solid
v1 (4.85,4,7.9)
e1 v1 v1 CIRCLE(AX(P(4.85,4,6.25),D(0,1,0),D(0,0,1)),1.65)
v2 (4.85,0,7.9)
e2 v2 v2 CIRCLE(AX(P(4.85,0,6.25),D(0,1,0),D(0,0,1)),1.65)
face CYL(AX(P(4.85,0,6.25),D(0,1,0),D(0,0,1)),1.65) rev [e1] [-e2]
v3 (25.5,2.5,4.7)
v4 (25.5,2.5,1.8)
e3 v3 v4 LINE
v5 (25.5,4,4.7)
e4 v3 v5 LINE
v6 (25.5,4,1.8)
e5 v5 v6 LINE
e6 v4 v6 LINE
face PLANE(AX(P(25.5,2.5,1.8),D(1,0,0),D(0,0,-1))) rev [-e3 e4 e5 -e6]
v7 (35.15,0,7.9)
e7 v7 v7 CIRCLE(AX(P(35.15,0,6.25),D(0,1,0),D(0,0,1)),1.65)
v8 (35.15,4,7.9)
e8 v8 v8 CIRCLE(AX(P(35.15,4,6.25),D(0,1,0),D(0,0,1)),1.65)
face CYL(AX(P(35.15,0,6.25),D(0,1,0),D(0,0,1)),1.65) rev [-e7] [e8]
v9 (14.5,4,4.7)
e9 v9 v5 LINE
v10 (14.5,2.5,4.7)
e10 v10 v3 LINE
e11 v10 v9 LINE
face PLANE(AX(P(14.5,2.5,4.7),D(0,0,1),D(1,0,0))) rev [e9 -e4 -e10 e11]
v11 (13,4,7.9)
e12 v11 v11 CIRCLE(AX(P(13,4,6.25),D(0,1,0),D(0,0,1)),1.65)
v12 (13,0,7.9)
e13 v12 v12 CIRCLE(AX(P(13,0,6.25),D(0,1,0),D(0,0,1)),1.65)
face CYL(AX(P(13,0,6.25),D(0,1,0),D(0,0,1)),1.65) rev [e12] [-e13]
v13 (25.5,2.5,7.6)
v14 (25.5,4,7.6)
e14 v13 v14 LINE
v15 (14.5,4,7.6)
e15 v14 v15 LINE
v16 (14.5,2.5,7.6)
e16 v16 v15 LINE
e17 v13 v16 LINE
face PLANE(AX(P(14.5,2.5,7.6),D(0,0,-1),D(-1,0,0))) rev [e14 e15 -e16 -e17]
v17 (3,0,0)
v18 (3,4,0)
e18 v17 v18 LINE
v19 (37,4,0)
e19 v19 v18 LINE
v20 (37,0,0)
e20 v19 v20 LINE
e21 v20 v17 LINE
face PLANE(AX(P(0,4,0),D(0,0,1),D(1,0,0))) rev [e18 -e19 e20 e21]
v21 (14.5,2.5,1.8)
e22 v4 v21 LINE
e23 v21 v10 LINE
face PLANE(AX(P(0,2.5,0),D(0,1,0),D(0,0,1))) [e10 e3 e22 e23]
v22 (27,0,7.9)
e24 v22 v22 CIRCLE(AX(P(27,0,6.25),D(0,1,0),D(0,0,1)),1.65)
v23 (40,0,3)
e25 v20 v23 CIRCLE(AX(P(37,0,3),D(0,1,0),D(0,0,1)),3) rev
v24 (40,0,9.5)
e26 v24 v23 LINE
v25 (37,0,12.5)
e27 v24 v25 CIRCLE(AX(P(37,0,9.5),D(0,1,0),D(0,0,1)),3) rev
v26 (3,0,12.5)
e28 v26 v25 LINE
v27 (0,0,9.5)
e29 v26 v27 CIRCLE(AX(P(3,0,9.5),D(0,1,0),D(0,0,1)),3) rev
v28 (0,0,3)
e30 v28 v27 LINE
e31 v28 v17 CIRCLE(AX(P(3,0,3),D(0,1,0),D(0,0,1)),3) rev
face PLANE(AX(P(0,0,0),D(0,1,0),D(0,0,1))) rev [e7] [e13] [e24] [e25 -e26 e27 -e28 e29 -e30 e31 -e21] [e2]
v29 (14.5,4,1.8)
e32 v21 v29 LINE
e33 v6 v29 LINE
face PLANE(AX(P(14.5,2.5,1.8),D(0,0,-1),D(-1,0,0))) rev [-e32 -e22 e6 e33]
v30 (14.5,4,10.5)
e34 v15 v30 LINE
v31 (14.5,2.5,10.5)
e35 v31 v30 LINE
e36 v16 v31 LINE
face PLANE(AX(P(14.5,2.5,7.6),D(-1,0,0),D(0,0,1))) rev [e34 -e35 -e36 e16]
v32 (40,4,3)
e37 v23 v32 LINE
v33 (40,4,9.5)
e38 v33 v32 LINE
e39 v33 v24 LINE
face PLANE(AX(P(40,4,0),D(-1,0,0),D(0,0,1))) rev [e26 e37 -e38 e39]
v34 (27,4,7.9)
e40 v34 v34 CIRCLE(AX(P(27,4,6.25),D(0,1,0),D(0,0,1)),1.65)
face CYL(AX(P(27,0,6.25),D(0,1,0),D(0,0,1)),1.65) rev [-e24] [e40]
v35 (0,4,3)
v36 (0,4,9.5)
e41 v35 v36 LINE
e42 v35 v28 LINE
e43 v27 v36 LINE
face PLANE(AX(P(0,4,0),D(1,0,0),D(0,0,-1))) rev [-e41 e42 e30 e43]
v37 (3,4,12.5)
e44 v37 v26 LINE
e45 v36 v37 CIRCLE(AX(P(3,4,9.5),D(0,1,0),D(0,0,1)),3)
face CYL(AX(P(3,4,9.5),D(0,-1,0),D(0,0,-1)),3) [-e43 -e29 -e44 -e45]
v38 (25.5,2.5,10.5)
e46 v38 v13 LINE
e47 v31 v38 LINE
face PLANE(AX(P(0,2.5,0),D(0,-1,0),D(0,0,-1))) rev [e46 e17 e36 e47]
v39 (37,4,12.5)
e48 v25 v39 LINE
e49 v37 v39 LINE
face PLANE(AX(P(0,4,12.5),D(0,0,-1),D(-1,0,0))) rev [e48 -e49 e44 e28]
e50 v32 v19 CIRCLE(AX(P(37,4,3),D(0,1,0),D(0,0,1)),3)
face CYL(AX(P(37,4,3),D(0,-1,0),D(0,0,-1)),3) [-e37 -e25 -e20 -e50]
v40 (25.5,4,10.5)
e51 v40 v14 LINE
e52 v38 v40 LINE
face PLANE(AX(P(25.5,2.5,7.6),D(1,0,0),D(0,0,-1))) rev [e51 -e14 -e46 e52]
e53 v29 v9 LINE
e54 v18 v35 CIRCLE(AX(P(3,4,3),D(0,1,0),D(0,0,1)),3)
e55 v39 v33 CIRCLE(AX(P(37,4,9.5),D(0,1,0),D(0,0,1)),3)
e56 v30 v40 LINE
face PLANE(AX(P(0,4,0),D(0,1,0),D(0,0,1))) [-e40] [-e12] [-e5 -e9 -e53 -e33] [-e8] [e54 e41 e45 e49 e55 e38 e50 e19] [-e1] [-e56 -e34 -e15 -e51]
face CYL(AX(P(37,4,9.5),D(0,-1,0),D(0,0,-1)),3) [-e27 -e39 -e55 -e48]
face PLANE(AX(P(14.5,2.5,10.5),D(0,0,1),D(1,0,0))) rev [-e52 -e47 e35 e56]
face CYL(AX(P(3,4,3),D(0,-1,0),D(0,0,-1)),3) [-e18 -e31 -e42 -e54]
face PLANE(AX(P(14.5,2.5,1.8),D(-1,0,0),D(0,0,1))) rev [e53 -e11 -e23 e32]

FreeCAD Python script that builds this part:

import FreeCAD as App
import Part
import Sketcher

V = App.Vector


def edges_at(feature, points):
    """Names of the edges that pass closest to the given points."""
    edges = feature.Shape.Edges
    near = lambda p: min(range(len(edges)), key=lambda i: edges[i].distToShape(Part.Vertex(*p))[0])
    return sorted({f"Edge{near(p) + 1}" for p in points})

doc = App.newDocument("Part")
body = doc.addObject("PartDesign::Body", "Body")

# Sketch on XZ plane
sketch1 = body.newObject("Sketcher::SketchObject", "Sketch")
sketch1.AttachmentSupport = (doc.getObject("XZ_Plane"), [""])
sketch1.MapMode = "FlatFace"
sketch1.addGeometry(Part.LineSegment(V(0, 0, 0), V(0, 12.5, 0)), False)
sketch1.addGeometry(Part.LineSegment(V(0, 12.5, 0), V(40, 12.5, 0)), False)
sketch1.addGeometry(Part.LineSegment(V(40, 12.5, 0), V(40, 0, 0)), False)
sketch1.addGeometry(Part.LineSegment(V(40, 0, 0), V(0, 0, 0)), False)
sketch1.addConstraint(Sketcher.Constraint("Coincident", 0, 2, 1, 1))
sketch1.addConstraint(Sketcher.Constraint("Coincident", 1, 2, 2, 1))
sketch1.addConstraint(Sketcher.Constraint("Coincident", 2, 2, 3, 1))
sketch1.addConstraint(Sketcher.Constraint("Coincident", 3, 2, 0, 1))
sketch1.addConstraint(Sketcher.Constraint("Vertical", 0))
sketch1.addConstraint(Sketcher.Constraint("Horizontal", 1))
sketch1.addConstraint(Sketcher.Constraint("Vertical", 2))
sketch1.addConstraint(Sketcher.Constraint("Horizontal", 3))
sketch1.addConstraint(Sketcher.Constraint("Coincident", 3, 2, -1, 1))
sketch1.addConstraint(Sketcher.Constraint("DistanceX", 1, 1, 1, 2, 40.0))
sketch1.addConstraint(Sketcher.Constraint("DistanceY", 0, 1, 0, 2, 12.5))
pad1 = body.newObject("PartDesign::Pad", "Pad")
pad1.Profile = sketch1
pad1.Length = 4
pad1.Reversed = True

# Sketch on XZ plane
sketch2 = body.newObject("Sketcher::SketchObject", "Sketch001")
sketch2.AttachmentSupport = (doc.getObject("XZ_Plane"), [""])
sketch2.MapMode = "FlatFace"
sketch2.AttachmentOffset = App.Placement(V(0, 0, -4), App.Rotation())
sketch2.addGeometry(Part.Circle(V(4.85, 6.25, 0), V(0, 0, 1), 1.65), False)
sketch2.addGeometry(Part.Circle(V(13, 6.25, 0), V(0, 0, 1), 1.65), False)
sketch2.addGeometry(Part.Circle(V(27, 6.25, 0), V(0, 0, 1), 1.65), False)
sketch2.addGeometry(Part.Circle(V(35.15, 6.25, 0), V(0, 0, 1), 1.65), False)
sketch2.addConstraint(Sketcher.Constraint("Equal", 0, 1))
sketch2.addConstraint(Sketcher.Constraint("Equal", 1, 2))
sketch2.addConstraint(Sketcher.Constraint("Equal", 2, 3))
sketch2.addConstraint(Sketcher.Constraint("Horizontal", 0, 3, 1, 3))
sketch2.addConstraint(Sketcher.Constraint("Horizontal", 1, 3, 2, 3))
sketch2.addConstraint(Sketcher.Constraint("Horizontal", 2, 3, 3, 3))
sketch2.addConstraint(Sketcher.Constraint("Diameter", 0, 3.3))
sketch2.addConstraint(Sketcher.Constraint("DistanceX", -1, 1, 1, 3, 13.0))
sketch2.addConstraint(Sketcher.Constraint("DistanceX", -1, 1, 2, 3, 27.0))
sketch2.addConstraint(Sketcher.Constraint("DistanceX", 0, 3, 3, 3, 30.3))
sketch2.addConstraint(Sketcher.Constraint("DistanceX", -1, 1, 0, 3, 4.85))
sketch2.addConstraint(Sketcher.Constraint("DistanceY", -1, 1, 0, 3, 6.25))
pocket1 = body.newObject("PartDesign::Pocket", "Pocket")
pocket1.Profile = sketch2
pocket1.Type = "ThroughAll"
pocket1.Reversed = True

# Sketch on XZ plane
sketch3 = body.newObject("Sketcher::SketchObject", "Sketch002")
sketch3.AttachmentSupport = (doc.getObject("XZ_Plane"), [""])
sketch3.MapMode = "FlatFace"
sketch3.AttachmentOffset = App.Placement(V(0, 0, -4), App.Rotation())
sketch3.addGeometry(Part.LineSegment(V(14.5, 1.8, 0), V(14.5, 4.7, 0)), False)
sketch3.addGeometry(Part.LineSegment(V(14.5, 4.7, 0), V(25.5, 4.7, 0)), False)
sketch3.addGeometry(Part.LineSegment(V(25.5, 4.7, 0), V(25.5, 1.8, 0)), False)
sketch3.addGeometry(Part.LineSegment(V(25.5, 1.8, 0), V(14.5, 1.8, 0)), False)
sketch3.addGeometry(Part.LineSegment(V(14.5, 7.6, 0), V(14.5, 10.5, 0)), False)
sketch3.addGeometry(Part.LineSegment(V(14.5, 10.5, 0), V(25.5, 10.5, 0)), False)
sketch3.addGeometry(Part.LineSegment(V(25.5, 10.5, 0), V(25.5, 7.6, 0)), False)
sketch3.addGeometry(Part.LineSegment(V(25.5, 7.6, 0), V(14.5, 7.6, 0)), False)
sketch3.addConstraint(Sketcher.Constraint("Coincident", 0, 2, 1, 1))
sketch3.addConstraint(Sketcher.Constraint("Coincident", 1, 2, 2, 1))
sketch3.addConstraint(Sketcher.Constraint("Coincident", 2, 2, 3, 1))
sketch3.addConstraint(Sketcher.Constraint("Coincident", 3, 2, 0, 1))
sketch3.addConstraint(Sketcher.Constraint("Coincident", 4, 2, 5, 1))
sketch3.addConstraint(Sketcher.Constraint("Coincident", 5, 2, 6, 1))
sketch3.addConstraint(Sketcher.Constraint("Coincident", 6, 2, 7, 1))
sketch3.addConstraint(Sketcher.Constraint("Coincident", 7, 2, 4, 1))
sketch3.addConstraint(Sketcher.Constraint("Vertical", 0))
sketch3.addConstraint(Sketcher.Constraint("Horizontal", 1))
sketch3.addConstraint(Sketcher.Constraint("Vertical", 2))
sketch3.addConstraint(Sketcher.Constraint("Horizontal", 3))
sketch3.addConstraint(Sketcher.Constraint("Vertical", 4))
sketch3.addConstraint(Sketcher.Constraint("Horizontal", 5))
sketch3.addConstraint(Sketcher.Constraint("Vertical", 6))
sketch3.addConstraint(Sketcher.Constraint("Horizontal", 7))
sketch3.addConstraint(Sketcher.Constraint("Vertical", 3, 2, 4, 2))
sketch3.addConstraint(Sketcher.Constraint("Vertical", 2, 2, 5, 2))
sketch3.addConstraint(Sketcher.Constraint("Equal", 2, 4))
sketch3.addConstraint(Sketcher.Constraint("DistanceX", 1, 1, 1, 2, 11.0))
sketch3.addConstraint(Sketcher.Constraint("DistanceY", 0, 1, 0, 2, 2.9))
sketch3.addConstraint(Sketcher.Constraint("DistanceX", -1, 1, 0, 2, 14.5))
sketch3.addConstraint(Sketcher.Constraint("DistanceY", -1, 1, 0, 2, 4.7))
sketch3.addConstraint(Sketcher.Constraint("DistanceY", -1, 1, 4, 2, 10.5))
pocket2 = body.newObject("PartDesign::Pocket", "Pocket001")
pocket2.Profile = sketch3
pocket2.Length = 1.5
pocket2.Reversed = True
doc.recompute()

fillet = body.newObject("PartDesign::Fillet", "Fillet")
fillet.Base = (pocket2, edges_at(pocket2, [
    (0, 2, 0),
    (40, 2, 0),
    (40, 2, 12.5),
    (0, 2, 12.5),
]))
fillet.Radius = 3

doc.recompute()
